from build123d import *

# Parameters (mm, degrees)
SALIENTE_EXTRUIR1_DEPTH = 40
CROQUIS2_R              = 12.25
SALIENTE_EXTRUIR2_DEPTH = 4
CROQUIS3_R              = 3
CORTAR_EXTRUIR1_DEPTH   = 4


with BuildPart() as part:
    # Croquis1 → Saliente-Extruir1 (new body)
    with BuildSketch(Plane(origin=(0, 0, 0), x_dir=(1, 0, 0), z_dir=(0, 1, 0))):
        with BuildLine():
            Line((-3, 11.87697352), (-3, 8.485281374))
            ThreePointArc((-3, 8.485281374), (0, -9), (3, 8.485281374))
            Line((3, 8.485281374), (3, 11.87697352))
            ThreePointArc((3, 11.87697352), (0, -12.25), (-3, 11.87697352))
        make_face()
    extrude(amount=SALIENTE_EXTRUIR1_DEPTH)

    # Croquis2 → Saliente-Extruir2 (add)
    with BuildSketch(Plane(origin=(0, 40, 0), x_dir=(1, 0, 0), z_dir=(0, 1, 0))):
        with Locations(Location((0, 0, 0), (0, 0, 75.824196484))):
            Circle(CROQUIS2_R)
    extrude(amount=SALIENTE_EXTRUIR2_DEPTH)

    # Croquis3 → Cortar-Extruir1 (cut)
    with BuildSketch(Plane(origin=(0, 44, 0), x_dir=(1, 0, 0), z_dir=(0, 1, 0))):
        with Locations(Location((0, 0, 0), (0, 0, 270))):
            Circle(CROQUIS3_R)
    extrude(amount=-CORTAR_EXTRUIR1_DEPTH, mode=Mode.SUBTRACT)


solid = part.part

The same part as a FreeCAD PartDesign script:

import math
import FreeCAD as App
import Part
import Sketcher
from FreeCAD import Vector
Q = App.Units.Quantity

doc = App.newDocument("Part")
body = doc.addObject("PartDesign::Body", "Body")

# Sketch on XZ plane
sketch1 = doc.addObject("Sketcher::SketchObject", "Sketch")
body.addObject(sketch1)
sketch1.AttachmentSupport = (doc.XZ_Plane, [""])
sketch1.MapMode = "FlatFace"
sketch1.addGeometry(Part.LineSegment(Vector(-3, -8.5, 0), Vector(-3, -11.9, 0)), False)
sketch1.addGeometry(Part.ArcOfCircle(Part.Circle(Vector(0, 0, 0), Vector(0, 0, 1), 12.2), math.radians(-76), math.radians(256)), False)
sketch1.addGeometry(Part.LineSegment(Vector(3, -11.9, 0), Vector(3, -8.5, 0)), False)
sketch1.addGeometry(Part.ArcOfCircle(Part.Circle(Vector(0, 0, 0), Vector(0, 0, 1), 9), math.radians(-71), math.radians(251)), False)
sketch1.addConstraint(Sketcher.Constraint("Coincident", 0, 2, 1, 2))
sketch1.addConstraint(Sketcher.Constraint("Coincident", 1, 1, 2, 1))
sketch1.addConstraint(Sketcher.Constraint("Coincident", 2, 2, 3, 1))
sketch1.addConstraint(Sketcher.Constraint("Coincident", 3, 2, 0, 1))
sketch1.addConstraint(Sketcher.Constraint("Vertical", 0))
sketch1.addConstraint(Sketcher.Constraint("Vertical", 2))
sketch1.addConstraint(Sketcher.Constraint("Coincident", 1, 3, -1, 1))
sketch1.addConstraint(Sketcher.Constraint("Coincident", 3, 3, -1, 1))
sketch1.addConstraint(Sketcher.Constraint("Horizontal", 0, 2, 1, 1))
sketch1.addConstraint(Sketcher.Constraint("Radius", 3, Q("9 mm")))
sketch1.addConstraint(Sketcher.Constraint("Radius", 1, Q("12.25 mm")))
sketch1.addConstraint(Sketcher.Constraint("DistanceX", 0, 2, -1, 1, Q("3 mm")))
pad1 = doc.addObject("PartDesign::Pad", "Pad")
body.addObject(pad1)
pad1.Profile = sketch1
pad1.Length = 40
pad1.Reversed = True

# Sketch on XZ plane
sketch2 = doc.addObject("Sketcher::SketchObject", "Sketch001")
body.addObject(sketch2)
sketch2.AttachmentSupport = (doc.XZ_Plane, [""])
sketch2.MapMode = "FlatFace"
sketch2.AttachmentOffset = App.Placement(Vector(0, 0, -40), App.Rotation())
sketch2.addGeometry(Part.Circle(Vector(0, 0, 0), Vector(0, 0, 1), 12), False)
sketch2.addConstraint(Sketcher.Constraint("Coincident", 0, 3, -1, 1))
sketch2.addConstraint(Sketcher.Constraint("Diameter", 0, Q("24.5 mm")))
pad2 = doc.addObject("PartDesign::Pad", "Pad001")
body.addObject(pad2)
pad2.Profile = sketch2
pad2.Length = 4
pad2.Reversed = True

# Sketch on XZ plane
sketch3 = doc.addObject("Sketcher::SketchObject", "Sketch002")
body.addObject(sketch3)
sketch3.AttachmentSupport = (doc.XZ_Plane, [""])
sketch3.MapMode = "FlatFace"
sketch3.AttachmentOffset = App.Placement(Vector(0, 0, -44), App.Rotation())
sketch3.addGeometry(Part.Circle(Vector(0, 0, 0), Vector(0, 0, 1), 3), False)
sketch3.addConstraint(Sketcher.Constraint("Coincident", 0, 3, -1, 1))
sketch3.addConstraint(Sketcher.Constraint("Diameter", 0, Q("6 mm")))
pocket1 = doc.addObject("PartDesign::Pocket", "Pocket")
body.addObject(pocket1)
pocket1.Profile = sketch3
pocket1.Length = 4
pocket1.Reversed = True

doc.recompute()
